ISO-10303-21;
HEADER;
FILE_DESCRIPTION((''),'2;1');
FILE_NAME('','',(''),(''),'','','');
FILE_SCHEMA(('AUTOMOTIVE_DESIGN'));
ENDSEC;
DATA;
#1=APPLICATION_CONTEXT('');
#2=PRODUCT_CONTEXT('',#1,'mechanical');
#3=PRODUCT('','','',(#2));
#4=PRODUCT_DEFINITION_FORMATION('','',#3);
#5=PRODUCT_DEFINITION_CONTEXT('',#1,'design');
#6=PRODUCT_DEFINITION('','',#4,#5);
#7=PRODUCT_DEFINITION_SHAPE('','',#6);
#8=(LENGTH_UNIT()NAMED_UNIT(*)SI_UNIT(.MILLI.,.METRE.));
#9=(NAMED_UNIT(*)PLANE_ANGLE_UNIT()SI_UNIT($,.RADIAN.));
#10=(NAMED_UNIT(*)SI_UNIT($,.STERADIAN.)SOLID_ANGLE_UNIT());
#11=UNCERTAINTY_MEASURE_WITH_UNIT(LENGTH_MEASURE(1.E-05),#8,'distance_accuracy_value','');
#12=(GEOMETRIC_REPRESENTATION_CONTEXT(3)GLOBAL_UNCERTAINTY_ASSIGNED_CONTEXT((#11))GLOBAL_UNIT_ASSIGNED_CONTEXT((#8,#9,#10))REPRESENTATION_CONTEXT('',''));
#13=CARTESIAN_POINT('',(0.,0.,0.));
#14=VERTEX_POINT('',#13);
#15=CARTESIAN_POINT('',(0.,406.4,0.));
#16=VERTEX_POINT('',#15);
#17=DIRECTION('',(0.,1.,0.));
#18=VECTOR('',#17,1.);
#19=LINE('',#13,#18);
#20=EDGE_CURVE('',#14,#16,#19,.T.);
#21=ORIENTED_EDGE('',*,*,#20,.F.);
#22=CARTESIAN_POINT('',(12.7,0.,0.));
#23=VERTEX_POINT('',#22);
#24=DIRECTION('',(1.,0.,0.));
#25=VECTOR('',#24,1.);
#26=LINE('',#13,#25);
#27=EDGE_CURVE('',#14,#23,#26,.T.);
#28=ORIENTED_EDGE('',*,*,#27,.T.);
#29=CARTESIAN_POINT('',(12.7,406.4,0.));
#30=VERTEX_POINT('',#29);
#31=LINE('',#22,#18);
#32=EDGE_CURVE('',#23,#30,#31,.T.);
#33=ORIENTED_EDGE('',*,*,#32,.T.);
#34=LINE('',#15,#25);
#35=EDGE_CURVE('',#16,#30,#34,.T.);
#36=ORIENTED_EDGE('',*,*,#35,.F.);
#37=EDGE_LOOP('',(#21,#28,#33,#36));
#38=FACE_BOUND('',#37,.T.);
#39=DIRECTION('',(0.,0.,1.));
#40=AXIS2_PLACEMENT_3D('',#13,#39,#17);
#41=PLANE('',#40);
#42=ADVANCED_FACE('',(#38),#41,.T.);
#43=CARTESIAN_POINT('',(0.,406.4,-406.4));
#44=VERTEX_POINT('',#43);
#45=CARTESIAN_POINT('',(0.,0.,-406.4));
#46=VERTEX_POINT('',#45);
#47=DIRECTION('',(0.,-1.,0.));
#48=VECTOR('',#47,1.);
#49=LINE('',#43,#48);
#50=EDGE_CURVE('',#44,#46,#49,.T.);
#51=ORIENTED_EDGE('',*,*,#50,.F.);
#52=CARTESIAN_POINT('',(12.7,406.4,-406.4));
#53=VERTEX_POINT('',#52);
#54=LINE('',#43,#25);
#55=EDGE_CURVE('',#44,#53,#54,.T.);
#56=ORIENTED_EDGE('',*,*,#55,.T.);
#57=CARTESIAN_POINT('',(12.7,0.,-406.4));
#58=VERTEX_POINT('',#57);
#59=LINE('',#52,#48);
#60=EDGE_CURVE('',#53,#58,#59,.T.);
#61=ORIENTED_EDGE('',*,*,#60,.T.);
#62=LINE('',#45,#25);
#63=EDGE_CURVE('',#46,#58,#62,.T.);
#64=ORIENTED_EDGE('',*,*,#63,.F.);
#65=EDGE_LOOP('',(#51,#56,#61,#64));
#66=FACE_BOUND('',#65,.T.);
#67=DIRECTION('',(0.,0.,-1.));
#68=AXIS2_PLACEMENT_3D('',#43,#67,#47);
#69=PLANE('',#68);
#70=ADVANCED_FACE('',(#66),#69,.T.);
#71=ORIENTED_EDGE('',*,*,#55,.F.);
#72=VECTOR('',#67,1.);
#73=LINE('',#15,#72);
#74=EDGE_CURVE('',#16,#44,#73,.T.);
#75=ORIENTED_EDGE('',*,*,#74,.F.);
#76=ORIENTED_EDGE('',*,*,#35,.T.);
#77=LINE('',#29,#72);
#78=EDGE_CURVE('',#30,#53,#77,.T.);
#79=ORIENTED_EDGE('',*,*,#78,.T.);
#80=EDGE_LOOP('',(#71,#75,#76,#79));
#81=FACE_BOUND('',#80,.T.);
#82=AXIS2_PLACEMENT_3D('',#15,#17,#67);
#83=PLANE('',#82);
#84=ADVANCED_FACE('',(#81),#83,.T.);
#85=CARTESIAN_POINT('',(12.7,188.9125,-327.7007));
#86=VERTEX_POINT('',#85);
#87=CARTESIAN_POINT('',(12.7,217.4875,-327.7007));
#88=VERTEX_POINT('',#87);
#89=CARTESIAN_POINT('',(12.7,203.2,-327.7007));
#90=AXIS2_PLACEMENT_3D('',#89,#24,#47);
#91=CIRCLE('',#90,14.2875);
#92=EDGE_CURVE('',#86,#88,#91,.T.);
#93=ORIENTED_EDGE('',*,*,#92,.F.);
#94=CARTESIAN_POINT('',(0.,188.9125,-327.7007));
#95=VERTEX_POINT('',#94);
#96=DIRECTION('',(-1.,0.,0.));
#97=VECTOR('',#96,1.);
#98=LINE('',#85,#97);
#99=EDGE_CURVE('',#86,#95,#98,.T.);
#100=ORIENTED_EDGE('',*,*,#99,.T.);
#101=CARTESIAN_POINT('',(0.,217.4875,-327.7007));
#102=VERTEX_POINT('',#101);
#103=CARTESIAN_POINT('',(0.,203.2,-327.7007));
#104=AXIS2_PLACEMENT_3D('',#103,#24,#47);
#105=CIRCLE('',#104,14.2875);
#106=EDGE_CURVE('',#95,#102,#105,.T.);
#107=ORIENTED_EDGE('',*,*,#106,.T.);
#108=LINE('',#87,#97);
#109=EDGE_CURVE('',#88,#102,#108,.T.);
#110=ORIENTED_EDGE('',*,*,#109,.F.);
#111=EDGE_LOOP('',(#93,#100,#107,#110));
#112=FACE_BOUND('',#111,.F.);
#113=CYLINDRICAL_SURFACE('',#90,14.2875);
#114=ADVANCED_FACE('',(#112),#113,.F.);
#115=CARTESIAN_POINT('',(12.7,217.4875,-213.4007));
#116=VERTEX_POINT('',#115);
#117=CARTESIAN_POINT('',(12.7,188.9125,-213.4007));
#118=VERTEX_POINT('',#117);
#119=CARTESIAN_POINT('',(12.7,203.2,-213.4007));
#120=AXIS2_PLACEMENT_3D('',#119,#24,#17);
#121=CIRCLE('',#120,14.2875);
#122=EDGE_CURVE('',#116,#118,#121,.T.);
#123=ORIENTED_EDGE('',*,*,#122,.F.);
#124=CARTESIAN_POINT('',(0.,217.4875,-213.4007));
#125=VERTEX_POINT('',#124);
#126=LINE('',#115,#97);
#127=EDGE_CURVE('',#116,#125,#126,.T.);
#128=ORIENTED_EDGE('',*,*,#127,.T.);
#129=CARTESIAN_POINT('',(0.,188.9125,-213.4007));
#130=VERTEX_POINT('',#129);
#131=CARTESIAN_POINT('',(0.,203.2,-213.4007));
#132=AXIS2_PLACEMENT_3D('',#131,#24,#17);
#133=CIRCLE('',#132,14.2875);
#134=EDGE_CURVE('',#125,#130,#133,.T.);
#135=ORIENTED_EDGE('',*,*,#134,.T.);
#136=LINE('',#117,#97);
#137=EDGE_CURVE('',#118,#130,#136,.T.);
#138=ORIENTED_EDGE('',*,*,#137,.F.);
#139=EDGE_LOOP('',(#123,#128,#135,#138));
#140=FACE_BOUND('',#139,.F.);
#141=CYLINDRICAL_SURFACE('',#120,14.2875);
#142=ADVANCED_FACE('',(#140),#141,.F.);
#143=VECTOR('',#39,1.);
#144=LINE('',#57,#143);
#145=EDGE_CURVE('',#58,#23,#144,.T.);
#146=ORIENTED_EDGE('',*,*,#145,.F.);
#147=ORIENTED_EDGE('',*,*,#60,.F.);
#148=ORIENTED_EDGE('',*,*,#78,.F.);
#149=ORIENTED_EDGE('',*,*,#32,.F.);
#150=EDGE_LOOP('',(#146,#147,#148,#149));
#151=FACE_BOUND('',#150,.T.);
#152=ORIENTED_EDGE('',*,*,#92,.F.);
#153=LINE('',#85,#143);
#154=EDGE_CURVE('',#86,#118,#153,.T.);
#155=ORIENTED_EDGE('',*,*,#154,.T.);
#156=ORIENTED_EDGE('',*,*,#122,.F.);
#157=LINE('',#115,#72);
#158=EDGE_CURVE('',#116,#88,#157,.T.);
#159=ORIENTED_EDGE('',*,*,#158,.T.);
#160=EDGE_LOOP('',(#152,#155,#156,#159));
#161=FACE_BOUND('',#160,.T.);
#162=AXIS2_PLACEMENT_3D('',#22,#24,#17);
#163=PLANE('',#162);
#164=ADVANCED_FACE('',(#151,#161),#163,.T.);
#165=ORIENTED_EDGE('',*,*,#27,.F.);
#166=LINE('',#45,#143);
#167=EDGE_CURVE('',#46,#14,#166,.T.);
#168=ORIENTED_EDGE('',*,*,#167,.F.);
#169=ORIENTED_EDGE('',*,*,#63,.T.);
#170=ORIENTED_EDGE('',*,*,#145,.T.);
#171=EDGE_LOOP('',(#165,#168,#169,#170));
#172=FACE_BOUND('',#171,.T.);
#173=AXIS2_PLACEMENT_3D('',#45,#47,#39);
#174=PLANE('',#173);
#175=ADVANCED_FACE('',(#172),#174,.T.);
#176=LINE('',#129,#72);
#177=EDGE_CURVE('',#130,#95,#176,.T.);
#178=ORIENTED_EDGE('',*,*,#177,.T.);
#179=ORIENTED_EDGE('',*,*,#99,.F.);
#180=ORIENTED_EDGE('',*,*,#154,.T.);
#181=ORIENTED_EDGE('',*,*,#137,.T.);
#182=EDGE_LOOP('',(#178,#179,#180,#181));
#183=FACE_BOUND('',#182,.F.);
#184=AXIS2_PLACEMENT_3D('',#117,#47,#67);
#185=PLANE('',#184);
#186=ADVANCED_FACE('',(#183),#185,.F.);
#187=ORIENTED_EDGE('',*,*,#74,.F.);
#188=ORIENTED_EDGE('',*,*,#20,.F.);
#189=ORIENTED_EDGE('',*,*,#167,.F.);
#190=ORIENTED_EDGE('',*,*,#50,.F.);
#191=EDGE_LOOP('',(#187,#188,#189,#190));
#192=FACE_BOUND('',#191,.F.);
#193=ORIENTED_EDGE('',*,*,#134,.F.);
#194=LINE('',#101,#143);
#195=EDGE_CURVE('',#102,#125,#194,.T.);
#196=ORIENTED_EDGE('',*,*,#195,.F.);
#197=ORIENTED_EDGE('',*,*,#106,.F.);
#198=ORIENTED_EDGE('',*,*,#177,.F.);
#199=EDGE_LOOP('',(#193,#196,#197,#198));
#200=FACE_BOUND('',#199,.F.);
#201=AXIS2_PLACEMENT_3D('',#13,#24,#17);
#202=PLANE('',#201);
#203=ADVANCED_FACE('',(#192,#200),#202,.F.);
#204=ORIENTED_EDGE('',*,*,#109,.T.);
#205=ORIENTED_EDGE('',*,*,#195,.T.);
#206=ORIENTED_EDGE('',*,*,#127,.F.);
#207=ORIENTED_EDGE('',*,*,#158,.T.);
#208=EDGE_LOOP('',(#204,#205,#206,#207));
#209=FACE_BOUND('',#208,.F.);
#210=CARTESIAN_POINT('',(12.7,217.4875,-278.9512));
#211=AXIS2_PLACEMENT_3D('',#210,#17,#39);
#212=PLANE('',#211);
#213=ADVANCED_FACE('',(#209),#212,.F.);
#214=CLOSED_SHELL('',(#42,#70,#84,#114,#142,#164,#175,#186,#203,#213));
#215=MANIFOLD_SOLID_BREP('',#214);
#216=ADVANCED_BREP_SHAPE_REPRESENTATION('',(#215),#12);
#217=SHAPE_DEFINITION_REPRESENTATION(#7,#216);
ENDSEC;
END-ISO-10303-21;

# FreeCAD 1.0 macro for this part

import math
import FreeCAD as App
import Part
import Sketcher
Q = App.Units.Quantity

doc = App.newDocument("Part")
body = doc.addObject("PartDesign::Body", "Body")

# Sketch on YZ plane
sketch1 = body.newObject("Sketcher::SketchObject", "Sketch")
sketch1.AttachmentSupport = (doc.getObject("YZ_Plane"), [""])
sketch1.MapMode = "FlatFace"
sketch1.addGeometry(Part.LineSegment(App.Vector(406.4, 0, 0), App.Vector(0, 0, 0)), False)
sketch1.addGeometry(Part.LineSegment(App.Vector(0, 0, 0), App.Vector(0, -406.4, 0)), False)
sketch1.addGeometry(Part.LineSegment(App.Vector(0, -406.4, 0), App.Vector(406.4, -406.4, 0)), False)
sketch1.addGeometry(Part.LineSegment(App.Vector(406.4, -406.4, 0), App.Vector(406.4, 0, 0)), False)
sketch1.addConstraint(Sketcher.Constraint("Coincident", 0, 2, 1, 1))
sketch1.addConstraint(Sketcher.Constraint("Coincident", 1, 2, 2, 1))
sketch1.addConstraint(Sketcher.Constraint("Coincident", 2, 2, 3, 1))
sketch1.addConstraint(Sketcher.Constraint("Coincident", 3, 2, 0, 1))
sketch1.addConstraint(Sketcher.Constraint("Horizontal", 0))
sketch1.addConstraint(Sketcher.Constraint("Vertical", 1))
sketch1.addConstraint(Sketcher.Constraint("Horizontal", 2))
sketch1.addConstraint(Sketcher.Constraint("Vertical", 3))
sketch1.addConstraint(Sketcher.Constraint("Coincident", 0, 2, -1, 1))
sketch1.addConstraint(Sketcher.Constraint("Equal", 2, 1))
sketch1.addConstraint(Sketcher.Constraint("DistanceX", 0, 2, 0, 1, Q("16 in")))
pad1 = body.newObject("PartDesign::Pad", "Pad")
pad1.Profile = sketch1
pad1.Length = Q("0.5 in")

# Sketch on YZ plane
sketch2 = body.newObject("Sketcher::SketchObject", "Sketch001")
sketch2.AttachmentSupport = (doc.getObject("YZ_Plane"), [""])
sketch2.MapMode = "FlatFace"
sketch2.AttachmentOffset = App.Placement(App.Vector(0, 0, 0.5 * 25.4), App.Rotation())
sketch2.addGeometry(Part.LineSegment(App.Vector(217.4875, -327.7007, 0), App.Vector(217.4875, -213.4007, 0)), False)
sketch2.addGeometry(Part.ArcOfCircle(Part.Circle(App.Vector(203.2, -213.4007, 0), App.Vector(0, 0, 1), 14.2875), math.radians(0), math.radians(180)), False)
sketch2.addGeometry(Part.LineSegment(App.Vector(188.9125, -213.4007, 0), App.Vector(188.9125, -327.7007, 0)), False)
sketch2.addGeometry(Part.ArcOfCircle(Part.Circle(App.Vector(203.2, -327.7007, 0), App.Vector(0, 0, 1), 14.2875), math.radians(180), math.radians(360)), False)
sketch2.addConstraint(Sketcher.Constraint("Tangent", 0, 2, 1, 1))
sketch2.addConstraint(Sketcher.Constraint("Tangent", 1, 2, 2, 1))
sketch2.addConstraint(Sketcher.Constraint("Tangent", 2, 2, 3, 1))
sketch2.addConstraint(Sketcher.Constraint("Tangent", 3, 2, 0, 1))
sketch2.addConstraint(Sketcher.Constraint("Vertical", 0))
sketch2.addConstraint(Sketcher.Constraint("Vertical", 2))
sketch2.addConstraint(Sketcher.Constraint("DistanceY", 0, 1, 0, 2, Q("4.5 in")))
sketch2.addConstraint(Sketcher.Constraint("DistanceX", -1, 1, 1, 3, Q("8 in")))
sketch2.addConstraint(Sketcher.Constraint("Radius", 1, Q("0.5625 in")))
sketch2.addConstraint(Sketcher.Constraint("DistanceY", 1, 3, -1, 1, Q("8.4016 in")))
pocket1 = body.newObject("PartDesign::Pocket", "Pocket")
pocket1.Profile = sketch2
pocket1.Length = Q("1 in")

doc.recompute()
